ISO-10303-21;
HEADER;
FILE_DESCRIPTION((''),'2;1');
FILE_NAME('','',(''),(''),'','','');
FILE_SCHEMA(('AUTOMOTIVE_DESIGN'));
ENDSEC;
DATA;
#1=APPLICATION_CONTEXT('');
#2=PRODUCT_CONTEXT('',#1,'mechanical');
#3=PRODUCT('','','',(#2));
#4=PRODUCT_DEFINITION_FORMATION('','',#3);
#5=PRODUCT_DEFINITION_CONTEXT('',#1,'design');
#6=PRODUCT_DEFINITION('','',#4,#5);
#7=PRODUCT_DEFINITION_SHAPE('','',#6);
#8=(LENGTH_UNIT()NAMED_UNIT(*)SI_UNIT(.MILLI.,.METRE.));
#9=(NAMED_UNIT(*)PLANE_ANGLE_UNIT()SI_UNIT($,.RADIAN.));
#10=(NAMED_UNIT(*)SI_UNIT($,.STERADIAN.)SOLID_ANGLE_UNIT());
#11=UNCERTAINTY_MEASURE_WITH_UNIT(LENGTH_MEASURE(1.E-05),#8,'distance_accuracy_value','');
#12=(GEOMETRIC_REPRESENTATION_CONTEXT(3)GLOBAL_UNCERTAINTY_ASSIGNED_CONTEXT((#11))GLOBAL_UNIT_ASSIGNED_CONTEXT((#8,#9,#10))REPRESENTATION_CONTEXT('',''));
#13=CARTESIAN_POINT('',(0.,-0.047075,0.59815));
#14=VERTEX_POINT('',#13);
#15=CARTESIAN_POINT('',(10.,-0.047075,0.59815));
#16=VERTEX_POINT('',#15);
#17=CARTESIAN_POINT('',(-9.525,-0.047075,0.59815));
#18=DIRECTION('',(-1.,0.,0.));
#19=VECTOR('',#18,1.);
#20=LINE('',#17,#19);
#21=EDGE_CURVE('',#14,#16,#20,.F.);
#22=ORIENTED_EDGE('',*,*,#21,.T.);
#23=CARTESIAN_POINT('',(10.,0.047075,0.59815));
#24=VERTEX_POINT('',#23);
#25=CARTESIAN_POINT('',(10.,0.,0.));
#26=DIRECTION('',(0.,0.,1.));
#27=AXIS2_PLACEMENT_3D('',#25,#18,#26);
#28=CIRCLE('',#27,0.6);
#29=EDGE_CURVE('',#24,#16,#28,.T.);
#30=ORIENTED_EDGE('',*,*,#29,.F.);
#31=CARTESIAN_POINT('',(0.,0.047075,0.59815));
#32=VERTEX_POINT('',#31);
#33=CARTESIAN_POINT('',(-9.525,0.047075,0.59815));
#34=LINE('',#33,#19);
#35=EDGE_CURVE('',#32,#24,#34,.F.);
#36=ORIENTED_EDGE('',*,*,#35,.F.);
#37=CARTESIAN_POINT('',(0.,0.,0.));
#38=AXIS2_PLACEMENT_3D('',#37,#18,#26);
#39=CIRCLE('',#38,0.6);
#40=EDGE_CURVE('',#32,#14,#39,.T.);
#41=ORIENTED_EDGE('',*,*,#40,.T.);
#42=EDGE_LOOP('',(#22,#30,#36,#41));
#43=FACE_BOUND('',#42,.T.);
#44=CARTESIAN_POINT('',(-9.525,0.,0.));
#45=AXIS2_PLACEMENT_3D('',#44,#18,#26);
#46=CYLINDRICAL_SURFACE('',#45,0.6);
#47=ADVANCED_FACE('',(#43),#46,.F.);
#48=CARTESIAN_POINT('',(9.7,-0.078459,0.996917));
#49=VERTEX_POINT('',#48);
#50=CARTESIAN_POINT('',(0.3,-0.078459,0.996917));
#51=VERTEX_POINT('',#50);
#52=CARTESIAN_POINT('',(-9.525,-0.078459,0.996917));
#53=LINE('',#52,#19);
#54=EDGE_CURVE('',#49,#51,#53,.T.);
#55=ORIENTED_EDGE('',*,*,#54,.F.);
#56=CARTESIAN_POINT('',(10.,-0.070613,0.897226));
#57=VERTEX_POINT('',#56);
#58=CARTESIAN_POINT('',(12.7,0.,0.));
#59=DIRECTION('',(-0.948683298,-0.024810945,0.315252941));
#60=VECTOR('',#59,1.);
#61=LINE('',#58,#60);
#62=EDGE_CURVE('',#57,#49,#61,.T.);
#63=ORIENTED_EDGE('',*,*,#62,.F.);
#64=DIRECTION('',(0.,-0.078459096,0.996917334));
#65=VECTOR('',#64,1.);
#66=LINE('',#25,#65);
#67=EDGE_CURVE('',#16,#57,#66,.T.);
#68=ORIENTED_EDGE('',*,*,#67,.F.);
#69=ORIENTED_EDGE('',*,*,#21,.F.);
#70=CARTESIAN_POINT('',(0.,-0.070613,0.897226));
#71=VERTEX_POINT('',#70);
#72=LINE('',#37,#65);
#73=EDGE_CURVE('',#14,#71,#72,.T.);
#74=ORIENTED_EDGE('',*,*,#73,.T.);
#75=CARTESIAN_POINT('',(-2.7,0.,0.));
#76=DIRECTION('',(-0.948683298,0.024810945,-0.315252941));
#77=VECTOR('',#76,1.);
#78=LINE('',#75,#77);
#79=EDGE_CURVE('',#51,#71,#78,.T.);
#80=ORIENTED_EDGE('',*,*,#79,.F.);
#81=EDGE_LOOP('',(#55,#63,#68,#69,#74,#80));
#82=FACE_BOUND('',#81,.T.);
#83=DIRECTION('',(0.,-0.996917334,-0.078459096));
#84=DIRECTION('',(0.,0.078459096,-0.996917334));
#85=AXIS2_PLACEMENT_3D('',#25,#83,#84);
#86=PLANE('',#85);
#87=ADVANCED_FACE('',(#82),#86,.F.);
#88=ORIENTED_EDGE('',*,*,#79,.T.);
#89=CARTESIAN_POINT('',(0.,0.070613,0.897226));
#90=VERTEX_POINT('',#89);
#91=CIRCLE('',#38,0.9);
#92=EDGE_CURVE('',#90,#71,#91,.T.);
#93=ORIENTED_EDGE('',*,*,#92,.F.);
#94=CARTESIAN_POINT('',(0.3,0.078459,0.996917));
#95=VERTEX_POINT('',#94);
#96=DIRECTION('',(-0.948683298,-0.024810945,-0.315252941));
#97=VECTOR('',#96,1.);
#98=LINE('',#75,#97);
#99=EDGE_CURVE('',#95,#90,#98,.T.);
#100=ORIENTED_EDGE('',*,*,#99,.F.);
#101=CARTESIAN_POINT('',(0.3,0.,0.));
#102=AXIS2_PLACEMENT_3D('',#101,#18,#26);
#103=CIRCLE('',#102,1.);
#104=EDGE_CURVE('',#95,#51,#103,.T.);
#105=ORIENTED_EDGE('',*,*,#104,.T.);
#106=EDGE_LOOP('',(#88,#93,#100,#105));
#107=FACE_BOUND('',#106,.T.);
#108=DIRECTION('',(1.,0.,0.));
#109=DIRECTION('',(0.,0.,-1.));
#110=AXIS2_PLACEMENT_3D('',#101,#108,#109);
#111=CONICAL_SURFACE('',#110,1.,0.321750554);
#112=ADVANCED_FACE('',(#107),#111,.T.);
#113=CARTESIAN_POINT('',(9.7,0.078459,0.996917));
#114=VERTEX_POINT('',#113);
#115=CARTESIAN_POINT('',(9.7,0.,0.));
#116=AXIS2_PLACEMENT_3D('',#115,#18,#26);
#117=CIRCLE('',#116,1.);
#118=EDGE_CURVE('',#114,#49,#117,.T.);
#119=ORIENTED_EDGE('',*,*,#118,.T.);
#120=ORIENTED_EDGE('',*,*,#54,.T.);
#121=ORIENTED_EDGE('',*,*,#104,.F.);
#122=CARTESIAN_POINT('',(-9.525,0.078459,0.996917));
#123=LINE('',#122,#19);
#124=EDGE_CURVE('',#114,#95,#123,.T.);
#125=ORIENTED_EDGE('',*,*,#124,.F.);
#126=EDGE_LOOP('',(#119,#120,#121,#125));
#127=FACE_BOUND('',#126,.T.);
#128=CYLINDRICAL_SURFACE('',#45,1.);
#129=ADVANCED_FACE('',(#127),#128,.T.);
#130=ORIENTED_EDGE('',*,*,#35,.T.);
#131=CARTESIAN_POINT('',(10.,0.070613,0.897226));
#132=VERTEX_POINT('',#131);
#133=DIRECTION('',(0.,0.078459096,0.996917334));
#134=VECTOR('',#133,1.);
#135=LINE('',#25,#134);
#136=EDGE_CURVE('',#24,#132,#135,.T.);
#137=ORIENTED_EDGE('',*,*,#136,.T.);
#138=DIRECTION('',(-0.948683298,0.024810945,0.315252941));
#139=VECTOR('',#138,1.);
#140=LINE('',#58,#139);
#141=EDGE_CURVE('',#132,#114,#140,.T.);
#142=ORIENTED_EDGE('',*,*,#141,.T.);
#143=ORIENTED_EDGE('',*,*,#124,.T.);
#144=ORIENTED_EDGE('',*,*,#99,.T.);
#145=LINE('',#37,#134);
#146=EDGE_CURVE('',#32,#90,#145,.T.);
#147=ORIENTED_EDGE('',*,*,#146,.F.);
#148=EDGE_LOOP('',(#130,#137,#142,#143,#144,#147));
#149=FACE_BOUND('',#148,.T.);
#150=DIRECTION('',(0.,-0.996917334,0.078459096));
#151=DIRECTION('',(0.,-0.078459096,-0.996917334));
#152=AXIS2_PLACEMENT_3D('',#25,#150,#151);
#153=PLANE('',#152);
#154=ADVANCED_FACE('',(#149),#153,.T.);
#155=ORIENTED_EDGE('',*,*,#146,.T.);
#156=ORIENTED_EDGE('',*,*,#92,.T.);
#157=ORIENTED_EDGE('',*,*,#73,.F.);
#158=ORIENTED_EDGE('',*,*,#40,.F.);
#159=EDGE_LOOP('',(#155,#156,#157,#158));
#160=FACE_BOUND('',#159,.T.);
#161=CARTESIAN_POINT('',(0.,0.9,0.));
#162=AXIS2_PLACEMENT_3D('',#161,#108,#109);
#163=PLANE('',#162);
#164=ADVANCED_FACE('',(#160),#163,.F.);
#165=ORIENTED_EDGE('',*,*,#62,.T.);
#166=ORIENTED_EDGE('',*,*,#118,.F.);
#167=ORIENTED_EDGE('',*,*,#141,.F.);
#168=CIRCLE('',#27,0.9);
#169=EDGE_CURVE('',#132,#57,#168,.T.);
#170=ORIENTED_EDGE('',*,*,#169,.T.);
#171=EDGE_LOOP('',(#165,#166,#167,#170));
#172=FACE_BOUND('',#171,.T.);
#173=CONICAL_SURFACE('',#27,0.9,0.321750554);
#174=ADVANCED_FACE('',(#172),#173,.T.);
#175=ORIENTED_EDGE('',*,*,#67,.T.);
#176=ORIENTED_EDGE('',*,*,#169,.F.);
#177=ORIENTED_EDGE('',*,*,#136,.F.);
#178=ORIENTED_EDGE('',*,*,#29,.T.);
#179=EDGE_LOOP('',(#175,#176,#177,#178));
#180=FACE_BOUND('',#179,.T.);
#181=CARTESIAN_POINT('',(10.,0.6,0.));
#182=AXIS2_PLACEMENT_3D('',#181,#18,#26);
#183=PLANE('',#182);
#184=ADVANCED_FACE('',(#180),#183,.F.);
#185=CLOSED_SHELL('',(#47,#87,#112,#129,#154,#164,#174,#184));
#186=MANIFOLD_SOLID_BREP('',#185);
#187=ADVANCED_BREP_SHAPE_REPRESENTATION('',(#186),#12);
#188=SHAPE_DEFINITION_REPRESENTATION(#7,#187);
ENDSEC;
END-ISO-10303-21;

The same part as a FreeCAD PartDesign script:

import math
import FreeCAD as App
import Part
import Sketcher
Q = App.Units.Quantity

doc = App.newDocument("Part")
body = doc.addObject("PartDesign::Body", "Body")

sketch1 = doc.addObject("Sketcher::SketchObject", "Sketch")
body.addObject(sketch1)
sketch1.AttachmentSupport = (doc.XY_Plane, [""])
sketch1.MapMode = "FlatFace"
sketch1.addGeometry([
    Part.LineSegment(App.Vector(0, 0.6, 0), App.Vector(10, 0.6, 0)),
    Part.LineSegment(App.Vector(10, 0.6, 0), App.Vector(10, 0.9, 0)),
    Part.LineSegment(App.Vector(10, 0.9, 0), App.Vector(9.7, 1, 0)),
    Part.LineSegment(App.Vector(9.7, 1, 0), App.Vector(0.3, 1, 0)),
    Part.LineSegment(App.Vector(0.3, 1, 0), App.Vector(0, 0.9, 0)),
    Part.LineSegment(App.Vector(0, 0.9, 0), App.Vector(0, 0.6, 0)),
], False)
sketch1.addConstraint([
    Sketcher.Constraint("Coincident", 0, 2, 1, 1),
    Sketcher.Constraint("Coincident", 1, 2, 2, 1),
    Sketcher.Constraint("Coincident", 2, 2, 3, 1),
    Sketcher.Constraint("Coincident", 3, 2, 4, 1),
    Sketcher.Constraint("Coincident", 4, 2, 5, 1),
    Sketcher.Constraint("Coincident", 5, 2, 0, 1),
    Sketcher.Constraint("Horizontal", 0),
    Sketcher.Constraint("Vertical", 1),
    Sketcher.Constraint("Horizontal", 3),
    Sketcher.Constraint("Vertical", 5),
    Sketcher.Constraint("PointOnObject", 4, 2, -2),
    Sketcher.Constraint("Horizontal", 1, 2, 4, 2),
    Sketcher.Constraint("Equal", 2, 4),
    Sketcher.Constraint("DistanceX", 0, 1, 0, 2, Q("10 mm")),
    Sketcher.Constraint("DistanceX", 3, 2, 3, 1, Q("9.4 mm")),
    Sketcher.Constraint("DistanceY", 1, 1, 1, 2, Q("0.3 mm")),
    Sketcher.Constraint("DistanceY", -1, 1, 2, 2, Q("1 mm")),
    Sketcher.Constraint("DistanceY", -1, 1, 0, 2, Q("0.6 mm")),
])
revolution = doc.addObject("PartDesign::Revolution", "Revolution")
body.addObject(revolution)
revolution.Profile = sketch1
revolution.ReferenceAxis = (sketch1, ["H_Axis"])
revolution.Angle = 360

sketch2 = doc.addObject("Sketcher::SketchObject", "Sketch001")
body.addObject(sketch2)
sketch2.AttachmentSupport = (doc.YZ_Plane, [""])
sketch2.MapMode = "FlatFace"
sketch2.addGeometry([
    Part.LineSegment(App.Vector(0, 0, 0), App.Vector(-0.08, 1.02, 0)),
    Part.ArcOfCircle(Part.Circle(App.Vector(0, 0, 0), App.Vector(0, 0, 1), 1.02), math.radians(85.5), math.radians(94.5)),
    Part.LineSegment(App.Vector(0.08, 1.02, 0), App.Vector(0, 0, 0)),
], False)
sketch2.addConstraint([
    Sketcher.Constraint("Coincident", 0, 2, 1, 2),
    Sketcher.Constraint("Coincident", 1, 1, 2, 1),
    Sketcher.Constraint("Coincident", 2, 2, 0, 1),
    Sketcher.Constraint("Coincident", 1, 3, -1, 1),
    Sketcher.Constraint("Coincident", 2, 2, -1, 1),
    Sketcher.Constraint("Horizontal", 0, 2, 1, 1),
    Sketcher.Constraint("Radius", 1, Q("1.02 mm")),
    Sketcher.Constraint("Angle", 0, Q("94.5 deg")),
])
pocket1 = doc.addObject("PartDesign::Pocket", "Pocket")
body.addObject(pocket1)
pocket1.Profile = sketch2
pocket1.Type = "ThroughAll"
pocket1.Reversed = True

doc.recompute()
